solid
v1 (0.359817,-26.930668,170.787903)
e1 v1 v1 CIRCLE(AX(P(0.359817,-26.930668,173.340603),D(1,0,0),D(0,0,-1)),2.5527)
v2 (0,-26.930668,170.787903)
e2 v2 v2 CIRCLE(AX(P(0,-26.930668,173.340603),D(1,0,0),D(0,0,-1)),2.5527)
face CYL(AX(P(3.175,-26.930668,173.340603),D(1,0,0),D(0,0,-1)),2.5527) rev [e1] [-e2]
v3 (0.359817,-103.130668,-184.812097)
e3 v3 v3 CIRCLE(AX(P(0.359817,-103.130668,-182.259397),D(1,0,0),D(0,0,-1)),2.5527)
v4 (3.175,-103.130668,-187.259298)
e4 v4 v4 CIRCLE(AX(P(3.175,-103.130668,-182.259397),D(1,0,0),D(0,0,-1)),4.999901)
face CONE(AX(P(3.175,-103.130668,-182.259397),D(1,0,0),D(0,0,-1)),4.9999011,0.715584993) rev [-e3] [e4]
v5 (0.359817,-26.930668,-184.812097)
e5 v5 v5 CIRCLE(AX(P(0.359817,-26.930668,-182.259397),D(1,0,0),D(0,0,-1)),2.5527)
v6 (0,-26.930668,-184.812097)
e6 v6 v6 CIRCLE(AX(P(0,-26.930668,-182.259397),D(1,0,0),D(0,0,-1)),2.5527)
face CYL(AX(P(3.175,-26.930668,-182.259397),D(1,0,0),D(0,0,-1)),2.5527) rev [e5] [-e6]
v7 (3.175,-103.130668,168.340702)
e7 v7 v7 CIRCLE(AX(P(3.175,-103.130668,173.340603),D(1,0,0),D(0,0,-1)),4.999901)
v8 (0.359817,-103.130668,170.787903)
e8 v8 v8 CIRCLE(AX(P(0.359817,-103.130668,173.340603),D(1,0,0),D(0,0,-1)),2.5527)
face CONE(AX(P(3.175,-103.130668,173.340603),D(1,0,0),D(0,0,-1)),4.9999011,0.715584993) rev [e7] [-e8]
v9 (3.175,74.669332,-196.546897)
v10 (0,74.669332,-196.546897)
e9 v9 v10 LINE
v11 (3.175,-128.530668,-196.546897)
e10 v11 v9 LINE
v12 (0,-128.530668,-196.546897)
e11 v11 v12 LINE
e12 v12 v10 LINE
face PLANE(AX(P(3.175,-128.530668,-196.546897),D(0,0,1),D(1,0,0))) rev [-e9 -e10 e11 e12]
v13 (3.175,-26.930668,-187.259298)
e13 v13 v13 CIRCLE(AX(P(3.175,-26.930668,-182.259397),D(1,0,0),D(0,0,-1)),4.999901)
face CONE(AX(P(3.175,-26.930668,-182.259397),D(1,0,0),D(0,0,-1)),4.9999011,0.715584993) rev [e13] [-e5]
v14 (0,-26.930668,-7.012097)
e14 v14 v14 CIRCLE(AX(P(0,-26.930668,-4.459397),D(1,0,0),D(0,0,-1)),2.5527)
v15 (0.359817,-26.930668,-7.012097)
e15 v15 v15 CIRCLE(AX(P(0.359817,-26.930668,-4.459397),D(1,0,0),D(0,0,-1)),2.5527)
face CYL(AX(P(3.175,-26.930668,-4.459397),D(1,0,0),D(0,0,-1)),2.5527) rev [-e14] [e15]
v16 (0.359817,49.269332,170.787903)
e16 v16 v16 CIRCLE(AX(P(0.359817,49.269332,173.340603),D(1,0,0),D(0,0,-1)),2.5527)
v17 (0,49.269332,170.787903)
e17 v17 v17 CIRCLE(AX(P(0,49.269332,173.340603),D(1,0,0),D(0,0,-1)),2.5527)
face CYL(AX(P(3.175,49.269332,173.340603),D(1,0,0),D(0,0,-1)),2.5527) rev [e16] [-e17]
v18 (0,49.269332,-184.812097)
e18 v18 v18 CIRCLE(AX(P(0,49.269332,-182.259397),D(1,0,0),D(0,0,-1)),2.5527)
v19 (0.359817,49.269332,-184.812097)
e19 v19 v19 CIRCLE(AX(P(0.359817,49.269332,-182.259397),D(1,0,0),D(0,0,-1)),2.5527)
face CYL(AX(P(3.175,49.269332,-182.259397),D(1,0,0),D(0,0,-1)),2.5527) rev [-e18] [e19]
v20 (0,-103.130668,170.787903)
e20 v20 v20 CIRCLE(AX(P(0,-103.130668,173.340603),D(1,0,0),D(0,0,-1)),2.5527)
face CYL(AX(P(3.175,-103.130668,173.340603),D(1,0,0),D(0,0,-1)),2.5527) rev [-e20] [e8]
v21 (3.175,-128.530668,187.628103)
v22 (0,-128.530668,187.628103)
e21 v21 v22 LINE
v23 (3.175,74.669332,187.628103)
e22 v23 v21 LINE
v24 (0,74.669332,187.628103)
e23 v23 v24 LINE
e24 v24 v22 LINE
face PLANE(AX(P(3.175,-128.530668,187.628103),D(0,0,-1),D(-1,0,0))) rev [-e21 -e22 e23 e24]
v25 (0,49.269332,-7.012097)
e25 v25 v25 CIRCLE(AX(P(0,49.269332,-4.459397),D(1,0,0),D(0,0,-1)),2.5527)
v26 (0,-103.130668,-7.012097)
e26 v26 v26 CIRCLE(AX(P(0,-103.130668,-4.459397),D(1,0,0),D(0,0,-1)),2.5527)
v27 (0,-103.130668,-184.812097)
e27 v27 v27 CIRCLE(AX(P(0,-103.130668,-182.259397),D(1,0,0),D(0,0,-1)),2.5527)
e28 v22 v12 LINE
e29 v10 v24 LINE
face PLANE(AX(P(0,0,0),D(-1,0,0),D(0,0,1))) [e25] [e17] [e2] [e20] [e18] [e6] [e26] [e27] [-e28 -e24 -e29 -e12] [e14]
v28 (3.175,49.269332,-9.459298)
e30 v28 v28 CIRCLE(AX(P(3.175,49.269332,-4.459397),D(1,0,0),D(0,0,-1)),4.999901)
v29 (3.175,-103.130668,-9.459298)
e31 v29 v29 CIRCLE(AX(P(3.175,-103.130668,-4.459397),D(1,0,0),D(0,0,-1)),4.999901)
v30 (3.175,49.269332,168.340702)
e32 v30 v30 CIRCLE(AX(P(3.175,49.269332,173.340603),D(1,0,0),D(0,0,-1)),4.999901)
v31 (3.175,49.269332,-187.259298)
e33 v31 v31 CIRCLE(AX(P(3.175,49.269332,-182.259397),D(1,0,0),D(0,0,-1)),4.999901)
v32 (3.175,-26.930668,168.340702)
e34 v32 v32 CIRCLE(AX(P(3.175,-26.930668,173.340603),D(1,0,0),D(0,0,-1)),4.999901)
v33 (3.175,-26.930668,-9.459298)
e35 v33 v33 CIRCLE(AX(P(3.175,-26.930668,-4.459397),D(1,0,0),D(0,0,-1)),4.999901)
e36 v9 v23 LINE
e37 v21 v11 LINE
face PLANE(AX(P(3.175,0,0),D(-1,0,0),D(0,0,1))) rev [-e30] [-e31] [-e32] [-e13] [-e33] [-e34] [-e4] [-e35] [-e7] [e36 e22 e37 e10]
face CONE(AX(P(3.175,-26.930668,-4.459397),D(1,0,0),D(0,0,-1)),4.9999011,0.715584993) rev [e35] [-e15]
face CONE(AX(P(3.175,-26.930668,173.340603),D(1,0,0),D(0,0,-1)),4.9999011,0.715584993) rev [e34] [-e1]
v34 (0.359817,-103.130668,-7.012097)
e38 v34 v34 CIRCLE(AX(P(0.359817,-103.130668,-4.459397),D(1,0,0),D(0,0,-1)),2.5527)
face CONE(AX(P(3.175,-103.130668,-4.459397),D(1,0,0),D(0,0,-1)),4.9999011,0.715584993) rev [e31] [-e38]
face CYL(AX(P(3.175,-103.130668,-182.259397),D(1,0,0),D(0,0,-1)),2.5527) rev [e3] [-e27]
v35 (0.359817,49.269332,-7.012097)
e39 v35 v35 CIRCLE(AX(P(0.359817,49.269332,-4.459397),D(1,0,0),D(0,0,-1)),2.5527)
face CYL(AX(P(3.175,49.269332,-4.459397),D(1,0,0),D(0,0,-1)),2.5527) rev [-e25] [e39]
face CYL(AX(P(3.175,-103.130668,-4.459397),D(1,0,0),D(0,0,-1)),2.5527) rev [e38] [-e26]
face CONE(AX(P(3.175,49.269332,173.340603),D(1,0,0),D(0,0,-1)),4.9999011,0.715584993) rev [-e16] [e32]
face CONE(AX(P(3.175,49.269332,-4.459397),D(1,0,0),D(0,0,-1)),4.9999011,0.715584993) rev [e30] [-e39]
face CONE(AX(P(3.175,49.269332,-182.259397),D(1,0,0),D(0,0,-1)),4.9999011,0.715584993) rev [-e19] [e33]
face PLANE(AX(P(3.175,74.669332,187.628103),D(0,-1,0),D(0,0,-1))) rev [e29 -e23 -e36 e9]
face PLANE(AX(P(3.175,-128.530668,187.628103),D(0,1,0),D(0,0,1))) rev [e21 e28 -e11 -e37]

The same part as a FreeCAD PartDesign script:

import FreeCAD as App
import Part
import Sketcher
Q = App.Units.Quantity

doc = App.newDocument("Part")
body = doc.addObject("PartDesign::Body", "Body")

# Sketch on YZ plane
sketch1 = body.newObject("Sketcher::SketchObject", "Sketch")
sketch1.AttachmentSupport = (doc.getObject("YZ_Plane"), [""])
sketch1.MapMode = "FlatFace"
sketch1.addGeometry([
    Part.LineSegment(App.Vector(75, 188, 0), App.Vector(-129, 188, 0)),
    Part.LineSegment(App.Vector(-129, 188, 0), App.Vector(-129, -197, 0)),
    Part.LineSegment(App.Vector(-129, -197, 0), App.Vector(75, -197, 0)),
    Part.LineSegment(App.Vector(75, -197, 0), App.Vector(75, 188, 0)),
], False)
sketch1.addConstraint([
    Sketcher.Constraint("Coincident", 0, 2, 1, 1),
    Sketcher.Constraint("Coincident", 1, 2, 2, 1),
    Sketcher.Constraint("Coincident", 2, 2, 3, 1),
    Sketcher.Constraint("Coincident", 3, 2, 0, 1),
    Sketcher.Constraint("Horizontal", 0),
    Sketcher.Constraint("Vertical", 1),
    Sketcher.Constraint("Horizontal", 2),
    Sketcher.Constraint("Vertical", 3),
    Sketcher.Constraint("DistanceX", 0, 2, 0, 1, Q("8 in")),
    Sketcher.Constraint("DistanceY", 1, 2, 1, 1, Q("15.125 in")),
    Sketcher.Constraint("DistanceX", 0, 2, -1, 1, 128.530668),
    Sketcher.Constraint("DistanceY", -1, 1, 0, 2, 187.628103),
])
pad1 = body.newObject("PartDesign::Pad", "Pad")
pad1.Profile = sketch1
pad1.Length = Q("0.125 in")

# Sketch on XZ plane
sketch2 = body.newObject("Sketcher::SketchObject", "Sketch001")
sketch2.AttachmentSupport = (doc.getObject("XZ_Plane"), [""])
sketch2.MapMode = "FlatFace"
sketch2.AttachmentOffset = App.Placement(App.Vector(0, 0, -49.269332), App.Rotation())
sketch2.addGeometry([
    Part.LineSegment(App.Vector(0, 173.34, 0), App.Vector(3.17, 173.34, 0)),  # 0
    Part.LineSegment(App.Vector(3.17, 173.34, 0), App.Vector(3.17, 168.34, 0)),  # 1
    Part.LineSegment(App.Vector(3.17, 168.34, 0), App.Vector(0.36, 170.79, 0)),  # 2
    Part.LineSegment(App.Vector(0.36, 170.79, 0), App.Vector(0, 170.79, 0)),  # 3
    Part.LineSegment(App.Vector(0, 170.79, 0), App.Vector(0, 173.34, 0)),  # 4
], False)
sketch2.addGeometry(Part.LineSegment(App.Vector(3.17, 173.34, 0), App.Vector(0, 173.34, 0)), True)  # axis
sketch2.addConstraint([
    Sketcher.Constraint("Coincident", 0, 2, 1, 1),
    Sketcher.Constraint("Coincident", 1, 2, 2, 1),
    Sketcher.Constraint("Coincident", 2, 2, 3, 1),
    Sketcher.Constraint("Coincident", 3, 2, 4, 1),
    Sketcher.Constraint("Coincident", 4, 2, 0, 1),
    Sketcher.Constraint("Horizontal", 0),
    Sketcher.Constraint("Vertical", 1),
    Sketcher.Constraint("Horizontal", 3),
    Sketcher.Constraint("Vertical", 4),
    Sketcher.Constraint("Horizontal", 5),
    Sketcher.Constraint("Coincident", 5, 1, 0, 2),
    Sketcher.Constraint("PointOnObject", 3, 2, -2),
    Sketcher.Constraint("PointOnObject", 5, 2, -2),
    Sketcher.Constraint("Angle", 2, Q("139 deg")),
    Sketcher.Constraint("DistanceX", 0, 1, 0, 2, Q("0.125 in")),
    Sketcher.Constraint("DistanceY", 4, 1, 4, 2, Q("0.1005 in")),
    Sketcher.Constraint("DistanceY", 1, 2, 1, 1, 4.999901),
    Sketcher.Constraint("DistanceY", -1, 1, 1, 2, 168.340702),
])
groove = body.newObject("PartDesign::Groove", "Groove")
groove.Profile = sketch2
groove.ReferenceAxis = (sketch2, ["Axis0"])
groove.Angle = 360
doc.recompute()

linearpattern = body.newObject("PartDesign::LinearPattern", "LinearPattern")
linearpattern.Originals = [groove]
linearpattern.Direction = (doc.getObject("Y_Axis"), [""])
linearpattern.Mode = "offset"
linearpattern.Offset = Q("3 in")
linearpattern.Occurrences = 2
linearpattern.Reversed = True
body.Tip = linearpattern
doc.recompute()

linearpattern2 = body.newObject("PartDesign::LinearPattern", "LinearPattern001")
linearpattern2.Originals = [groove]
linearpattern2.Direction = (doc.getObject("Y_Axis"), [""])
linearpattern2.Mode = "offset"
linearpattern2.Offset = Q("6 in")
linearpattern2.Occurrences = 2
linearpattern2.Reversed = True
body.Tip = linearpattern2
doc.recompute()

linearpattern3 = body.newObject("PartDesign::LinearPattern", "LinearPattern002")
linearpattern3.Originals = [groove]
linearpattern3.Direction = (doc.getObject("Z_Axis"), [""])
linearpattern3.Mode = "offset"
linearpattern3.Offset = Q("7 in")
linearpattern3.Occurrences = 2
linearpattern3.Reversed = True
body.Tip = linearpattern3
doc.recompute()

datumline = body.newObject("PartDesign::Line", "DatumLine")
datumline.Placement = App.Placement(App.Vector(0, 0, 0), App.Rotation(App.Vector(0, 0, 1), App.Vector(0, -0.393919299, -0.91914503)))
linearpattern4 = body.newObject("PartDesign::LinearPattern", "LinearPattern003")
linearpattern4.Originals = [groove]
linearpattern4.Direction = (datumline, [""])
linearpattern4.Mode = "offset"
linearpattern4.Offset = 193.440637
linearpattern4.Occurrences = 2
body.Tip = linearpattern4
doc.recompute()

datumline2 = body.newObject("PartDesign::Line", "DatumLine001")
datumline2.Placement = App.Placement(App.Vector(0, 0, 0), App.Rotation(App.Vector(0, 0, 1), App.Vector(0, -0.650791373, -0.759256602)))
linearpattern5 = body.newObject("PartDesign::LinearPattern", "LinearPattern004")
linearpattern5.Originals = [groove]
linearpattern5.Direction = (datumline2, [""])
linearpattern5.Mode = "offset"
linearpattern5.Offset = 234.176429
linearpattern5.Occurrences = 2
body.Tip = linearpattern5
doc.recompute()

datumline3 = body.newObject("PartDesign::Line", "DatumLine002")
datumline3.Placement = App.Placement(App.Vector(0, 0, 0), App.Rotation(App.Vector(0, 0, 1), App.Vector(0, -0.209529089, -0.977802414)))
linearpattern6 = body.newObject("PartDesign::LinearPattern", "LinearPattern005")
linearpattern6.Originals = [groove]
linearpattern6.Direction = (datumline3, [""])
linearpattern6.Mode = "offset"
linearpattern6.Offset = 363.672655
linearpattern6.Occurrences = 2
body.Tip = linearpattern6
doc.recompute()

datumline4 = body.newObject("PartDesign::Line", "DatumLine003")
datumline4.Placement = App.Placement(App.Vector(0, 0, 0), App.Rotation(App.Vector(0, 0, 1), App.Vector(0, -0.393919299, -0.91914503)))
linearpattern7 = body.newObject("PartDesign::LinearPattern", "LinearPattern006")
linearpattern7.Originals = [groove]
linearpattern7.Direction = (datumline4, [""])
linearpattern7.Mode = "offset"
linearpattern7.Offset = 386.881274
linearpattern7.Occurrences = 2
body.Tip = linearpattern7

# Sketch on XZ plane
sketch3 = body.newObject("Sketcher::SketchObject", "Sketch002")
sketch3.AttachmentSupport = (doc.getObject("XZ_Plane"), [""])
sketch3.MapMode = "FlatFace"
sketch3.AttachmentOffset = App.Placement(App.Vector(0, 0, -49.269332), App.Rotation())
sketch3.addGeometry([
    Part.LineSegment(App.Vector(0, -182.26, 0), App.Vector(3.17, -182.26, 0)),  # 0
    Part.LineSegment(App.Vector(3.17, -182.26, 0), App.Vector(3.17, -187.26, 0)),  # 1
    Part.LineSegment(App.Vector(3.17, -187.26, 0), App.Vector(0.36, -184.81, 0)),  # 2
    Part.LineSegment(App.Vector(0.36, -184.81, 0), App.Vector(0, -184.81, 0)),  # 3
    Part.LineSegment(App.Vector(0, -184.81, 0), App.Vector(0, -182.26, 0)),  # 4
], False)
sketch3.addGeometry(Part.LineSegment(App.Vector(3.17, -182.26, 0), App.Vector(0, -182.26, 0)), True)  # axis
sketch3.addConstraint([
    Sketcher.Constraint("Coincident", 0, 2, 1, 1),
    Sketcher.Constraint("Coincident", 1, 2, 2, 1),
    Sketcher.Constraint("Coincident", 2, 2, 3, 1),
    Sketcher.Constraint("Coincident", 3, 2, 4, 1),
    Sketcher.Constraint("Coincident", 4, 2, 0, 1),
    Sketcher.Constraint("Horizontal", 0),
    Sketcher.Constraint("Vertical", 1),
    Sketcher.Constraint("Horizontal", 3),
    Sketcher.Constraint("Vertical", 4),
    Sketcher.Constraint("Horizontal", 5),
    Sketcher.Constraint("Coincident", 5, 1, 0, 2),
    Sketcher.Constraint("PointOnObject", 3, 2, -2),
    Sketcher.Constraint("PointOnObject", 5, 2, -2),
    Sketcher.Constraint("Angle", 2, Q("139 deg")),
    Sketcher.Constraint("DistanceX", 0, 1, 0, 2, Q("0.125 in")),
    Sketcher.Constraint("DistanceY", 4, 1, 4, 2, Q("0.1005 in")),
    Sketcher.Constraint("DistanceY", 1, 2, 1, 1, 4.999901),
    Sketcher.Constraint("DistanceY", 1, 2, -1, 1, 187.259298),
])
groove2 = body.newObject("PartDesign::Groove", "Groove001")
groove2.Profile = sketch3
groove2.ReferenceAxis = (sketch3, ["Axis0"])
groove2.Angle = 360

doc.recompute()
